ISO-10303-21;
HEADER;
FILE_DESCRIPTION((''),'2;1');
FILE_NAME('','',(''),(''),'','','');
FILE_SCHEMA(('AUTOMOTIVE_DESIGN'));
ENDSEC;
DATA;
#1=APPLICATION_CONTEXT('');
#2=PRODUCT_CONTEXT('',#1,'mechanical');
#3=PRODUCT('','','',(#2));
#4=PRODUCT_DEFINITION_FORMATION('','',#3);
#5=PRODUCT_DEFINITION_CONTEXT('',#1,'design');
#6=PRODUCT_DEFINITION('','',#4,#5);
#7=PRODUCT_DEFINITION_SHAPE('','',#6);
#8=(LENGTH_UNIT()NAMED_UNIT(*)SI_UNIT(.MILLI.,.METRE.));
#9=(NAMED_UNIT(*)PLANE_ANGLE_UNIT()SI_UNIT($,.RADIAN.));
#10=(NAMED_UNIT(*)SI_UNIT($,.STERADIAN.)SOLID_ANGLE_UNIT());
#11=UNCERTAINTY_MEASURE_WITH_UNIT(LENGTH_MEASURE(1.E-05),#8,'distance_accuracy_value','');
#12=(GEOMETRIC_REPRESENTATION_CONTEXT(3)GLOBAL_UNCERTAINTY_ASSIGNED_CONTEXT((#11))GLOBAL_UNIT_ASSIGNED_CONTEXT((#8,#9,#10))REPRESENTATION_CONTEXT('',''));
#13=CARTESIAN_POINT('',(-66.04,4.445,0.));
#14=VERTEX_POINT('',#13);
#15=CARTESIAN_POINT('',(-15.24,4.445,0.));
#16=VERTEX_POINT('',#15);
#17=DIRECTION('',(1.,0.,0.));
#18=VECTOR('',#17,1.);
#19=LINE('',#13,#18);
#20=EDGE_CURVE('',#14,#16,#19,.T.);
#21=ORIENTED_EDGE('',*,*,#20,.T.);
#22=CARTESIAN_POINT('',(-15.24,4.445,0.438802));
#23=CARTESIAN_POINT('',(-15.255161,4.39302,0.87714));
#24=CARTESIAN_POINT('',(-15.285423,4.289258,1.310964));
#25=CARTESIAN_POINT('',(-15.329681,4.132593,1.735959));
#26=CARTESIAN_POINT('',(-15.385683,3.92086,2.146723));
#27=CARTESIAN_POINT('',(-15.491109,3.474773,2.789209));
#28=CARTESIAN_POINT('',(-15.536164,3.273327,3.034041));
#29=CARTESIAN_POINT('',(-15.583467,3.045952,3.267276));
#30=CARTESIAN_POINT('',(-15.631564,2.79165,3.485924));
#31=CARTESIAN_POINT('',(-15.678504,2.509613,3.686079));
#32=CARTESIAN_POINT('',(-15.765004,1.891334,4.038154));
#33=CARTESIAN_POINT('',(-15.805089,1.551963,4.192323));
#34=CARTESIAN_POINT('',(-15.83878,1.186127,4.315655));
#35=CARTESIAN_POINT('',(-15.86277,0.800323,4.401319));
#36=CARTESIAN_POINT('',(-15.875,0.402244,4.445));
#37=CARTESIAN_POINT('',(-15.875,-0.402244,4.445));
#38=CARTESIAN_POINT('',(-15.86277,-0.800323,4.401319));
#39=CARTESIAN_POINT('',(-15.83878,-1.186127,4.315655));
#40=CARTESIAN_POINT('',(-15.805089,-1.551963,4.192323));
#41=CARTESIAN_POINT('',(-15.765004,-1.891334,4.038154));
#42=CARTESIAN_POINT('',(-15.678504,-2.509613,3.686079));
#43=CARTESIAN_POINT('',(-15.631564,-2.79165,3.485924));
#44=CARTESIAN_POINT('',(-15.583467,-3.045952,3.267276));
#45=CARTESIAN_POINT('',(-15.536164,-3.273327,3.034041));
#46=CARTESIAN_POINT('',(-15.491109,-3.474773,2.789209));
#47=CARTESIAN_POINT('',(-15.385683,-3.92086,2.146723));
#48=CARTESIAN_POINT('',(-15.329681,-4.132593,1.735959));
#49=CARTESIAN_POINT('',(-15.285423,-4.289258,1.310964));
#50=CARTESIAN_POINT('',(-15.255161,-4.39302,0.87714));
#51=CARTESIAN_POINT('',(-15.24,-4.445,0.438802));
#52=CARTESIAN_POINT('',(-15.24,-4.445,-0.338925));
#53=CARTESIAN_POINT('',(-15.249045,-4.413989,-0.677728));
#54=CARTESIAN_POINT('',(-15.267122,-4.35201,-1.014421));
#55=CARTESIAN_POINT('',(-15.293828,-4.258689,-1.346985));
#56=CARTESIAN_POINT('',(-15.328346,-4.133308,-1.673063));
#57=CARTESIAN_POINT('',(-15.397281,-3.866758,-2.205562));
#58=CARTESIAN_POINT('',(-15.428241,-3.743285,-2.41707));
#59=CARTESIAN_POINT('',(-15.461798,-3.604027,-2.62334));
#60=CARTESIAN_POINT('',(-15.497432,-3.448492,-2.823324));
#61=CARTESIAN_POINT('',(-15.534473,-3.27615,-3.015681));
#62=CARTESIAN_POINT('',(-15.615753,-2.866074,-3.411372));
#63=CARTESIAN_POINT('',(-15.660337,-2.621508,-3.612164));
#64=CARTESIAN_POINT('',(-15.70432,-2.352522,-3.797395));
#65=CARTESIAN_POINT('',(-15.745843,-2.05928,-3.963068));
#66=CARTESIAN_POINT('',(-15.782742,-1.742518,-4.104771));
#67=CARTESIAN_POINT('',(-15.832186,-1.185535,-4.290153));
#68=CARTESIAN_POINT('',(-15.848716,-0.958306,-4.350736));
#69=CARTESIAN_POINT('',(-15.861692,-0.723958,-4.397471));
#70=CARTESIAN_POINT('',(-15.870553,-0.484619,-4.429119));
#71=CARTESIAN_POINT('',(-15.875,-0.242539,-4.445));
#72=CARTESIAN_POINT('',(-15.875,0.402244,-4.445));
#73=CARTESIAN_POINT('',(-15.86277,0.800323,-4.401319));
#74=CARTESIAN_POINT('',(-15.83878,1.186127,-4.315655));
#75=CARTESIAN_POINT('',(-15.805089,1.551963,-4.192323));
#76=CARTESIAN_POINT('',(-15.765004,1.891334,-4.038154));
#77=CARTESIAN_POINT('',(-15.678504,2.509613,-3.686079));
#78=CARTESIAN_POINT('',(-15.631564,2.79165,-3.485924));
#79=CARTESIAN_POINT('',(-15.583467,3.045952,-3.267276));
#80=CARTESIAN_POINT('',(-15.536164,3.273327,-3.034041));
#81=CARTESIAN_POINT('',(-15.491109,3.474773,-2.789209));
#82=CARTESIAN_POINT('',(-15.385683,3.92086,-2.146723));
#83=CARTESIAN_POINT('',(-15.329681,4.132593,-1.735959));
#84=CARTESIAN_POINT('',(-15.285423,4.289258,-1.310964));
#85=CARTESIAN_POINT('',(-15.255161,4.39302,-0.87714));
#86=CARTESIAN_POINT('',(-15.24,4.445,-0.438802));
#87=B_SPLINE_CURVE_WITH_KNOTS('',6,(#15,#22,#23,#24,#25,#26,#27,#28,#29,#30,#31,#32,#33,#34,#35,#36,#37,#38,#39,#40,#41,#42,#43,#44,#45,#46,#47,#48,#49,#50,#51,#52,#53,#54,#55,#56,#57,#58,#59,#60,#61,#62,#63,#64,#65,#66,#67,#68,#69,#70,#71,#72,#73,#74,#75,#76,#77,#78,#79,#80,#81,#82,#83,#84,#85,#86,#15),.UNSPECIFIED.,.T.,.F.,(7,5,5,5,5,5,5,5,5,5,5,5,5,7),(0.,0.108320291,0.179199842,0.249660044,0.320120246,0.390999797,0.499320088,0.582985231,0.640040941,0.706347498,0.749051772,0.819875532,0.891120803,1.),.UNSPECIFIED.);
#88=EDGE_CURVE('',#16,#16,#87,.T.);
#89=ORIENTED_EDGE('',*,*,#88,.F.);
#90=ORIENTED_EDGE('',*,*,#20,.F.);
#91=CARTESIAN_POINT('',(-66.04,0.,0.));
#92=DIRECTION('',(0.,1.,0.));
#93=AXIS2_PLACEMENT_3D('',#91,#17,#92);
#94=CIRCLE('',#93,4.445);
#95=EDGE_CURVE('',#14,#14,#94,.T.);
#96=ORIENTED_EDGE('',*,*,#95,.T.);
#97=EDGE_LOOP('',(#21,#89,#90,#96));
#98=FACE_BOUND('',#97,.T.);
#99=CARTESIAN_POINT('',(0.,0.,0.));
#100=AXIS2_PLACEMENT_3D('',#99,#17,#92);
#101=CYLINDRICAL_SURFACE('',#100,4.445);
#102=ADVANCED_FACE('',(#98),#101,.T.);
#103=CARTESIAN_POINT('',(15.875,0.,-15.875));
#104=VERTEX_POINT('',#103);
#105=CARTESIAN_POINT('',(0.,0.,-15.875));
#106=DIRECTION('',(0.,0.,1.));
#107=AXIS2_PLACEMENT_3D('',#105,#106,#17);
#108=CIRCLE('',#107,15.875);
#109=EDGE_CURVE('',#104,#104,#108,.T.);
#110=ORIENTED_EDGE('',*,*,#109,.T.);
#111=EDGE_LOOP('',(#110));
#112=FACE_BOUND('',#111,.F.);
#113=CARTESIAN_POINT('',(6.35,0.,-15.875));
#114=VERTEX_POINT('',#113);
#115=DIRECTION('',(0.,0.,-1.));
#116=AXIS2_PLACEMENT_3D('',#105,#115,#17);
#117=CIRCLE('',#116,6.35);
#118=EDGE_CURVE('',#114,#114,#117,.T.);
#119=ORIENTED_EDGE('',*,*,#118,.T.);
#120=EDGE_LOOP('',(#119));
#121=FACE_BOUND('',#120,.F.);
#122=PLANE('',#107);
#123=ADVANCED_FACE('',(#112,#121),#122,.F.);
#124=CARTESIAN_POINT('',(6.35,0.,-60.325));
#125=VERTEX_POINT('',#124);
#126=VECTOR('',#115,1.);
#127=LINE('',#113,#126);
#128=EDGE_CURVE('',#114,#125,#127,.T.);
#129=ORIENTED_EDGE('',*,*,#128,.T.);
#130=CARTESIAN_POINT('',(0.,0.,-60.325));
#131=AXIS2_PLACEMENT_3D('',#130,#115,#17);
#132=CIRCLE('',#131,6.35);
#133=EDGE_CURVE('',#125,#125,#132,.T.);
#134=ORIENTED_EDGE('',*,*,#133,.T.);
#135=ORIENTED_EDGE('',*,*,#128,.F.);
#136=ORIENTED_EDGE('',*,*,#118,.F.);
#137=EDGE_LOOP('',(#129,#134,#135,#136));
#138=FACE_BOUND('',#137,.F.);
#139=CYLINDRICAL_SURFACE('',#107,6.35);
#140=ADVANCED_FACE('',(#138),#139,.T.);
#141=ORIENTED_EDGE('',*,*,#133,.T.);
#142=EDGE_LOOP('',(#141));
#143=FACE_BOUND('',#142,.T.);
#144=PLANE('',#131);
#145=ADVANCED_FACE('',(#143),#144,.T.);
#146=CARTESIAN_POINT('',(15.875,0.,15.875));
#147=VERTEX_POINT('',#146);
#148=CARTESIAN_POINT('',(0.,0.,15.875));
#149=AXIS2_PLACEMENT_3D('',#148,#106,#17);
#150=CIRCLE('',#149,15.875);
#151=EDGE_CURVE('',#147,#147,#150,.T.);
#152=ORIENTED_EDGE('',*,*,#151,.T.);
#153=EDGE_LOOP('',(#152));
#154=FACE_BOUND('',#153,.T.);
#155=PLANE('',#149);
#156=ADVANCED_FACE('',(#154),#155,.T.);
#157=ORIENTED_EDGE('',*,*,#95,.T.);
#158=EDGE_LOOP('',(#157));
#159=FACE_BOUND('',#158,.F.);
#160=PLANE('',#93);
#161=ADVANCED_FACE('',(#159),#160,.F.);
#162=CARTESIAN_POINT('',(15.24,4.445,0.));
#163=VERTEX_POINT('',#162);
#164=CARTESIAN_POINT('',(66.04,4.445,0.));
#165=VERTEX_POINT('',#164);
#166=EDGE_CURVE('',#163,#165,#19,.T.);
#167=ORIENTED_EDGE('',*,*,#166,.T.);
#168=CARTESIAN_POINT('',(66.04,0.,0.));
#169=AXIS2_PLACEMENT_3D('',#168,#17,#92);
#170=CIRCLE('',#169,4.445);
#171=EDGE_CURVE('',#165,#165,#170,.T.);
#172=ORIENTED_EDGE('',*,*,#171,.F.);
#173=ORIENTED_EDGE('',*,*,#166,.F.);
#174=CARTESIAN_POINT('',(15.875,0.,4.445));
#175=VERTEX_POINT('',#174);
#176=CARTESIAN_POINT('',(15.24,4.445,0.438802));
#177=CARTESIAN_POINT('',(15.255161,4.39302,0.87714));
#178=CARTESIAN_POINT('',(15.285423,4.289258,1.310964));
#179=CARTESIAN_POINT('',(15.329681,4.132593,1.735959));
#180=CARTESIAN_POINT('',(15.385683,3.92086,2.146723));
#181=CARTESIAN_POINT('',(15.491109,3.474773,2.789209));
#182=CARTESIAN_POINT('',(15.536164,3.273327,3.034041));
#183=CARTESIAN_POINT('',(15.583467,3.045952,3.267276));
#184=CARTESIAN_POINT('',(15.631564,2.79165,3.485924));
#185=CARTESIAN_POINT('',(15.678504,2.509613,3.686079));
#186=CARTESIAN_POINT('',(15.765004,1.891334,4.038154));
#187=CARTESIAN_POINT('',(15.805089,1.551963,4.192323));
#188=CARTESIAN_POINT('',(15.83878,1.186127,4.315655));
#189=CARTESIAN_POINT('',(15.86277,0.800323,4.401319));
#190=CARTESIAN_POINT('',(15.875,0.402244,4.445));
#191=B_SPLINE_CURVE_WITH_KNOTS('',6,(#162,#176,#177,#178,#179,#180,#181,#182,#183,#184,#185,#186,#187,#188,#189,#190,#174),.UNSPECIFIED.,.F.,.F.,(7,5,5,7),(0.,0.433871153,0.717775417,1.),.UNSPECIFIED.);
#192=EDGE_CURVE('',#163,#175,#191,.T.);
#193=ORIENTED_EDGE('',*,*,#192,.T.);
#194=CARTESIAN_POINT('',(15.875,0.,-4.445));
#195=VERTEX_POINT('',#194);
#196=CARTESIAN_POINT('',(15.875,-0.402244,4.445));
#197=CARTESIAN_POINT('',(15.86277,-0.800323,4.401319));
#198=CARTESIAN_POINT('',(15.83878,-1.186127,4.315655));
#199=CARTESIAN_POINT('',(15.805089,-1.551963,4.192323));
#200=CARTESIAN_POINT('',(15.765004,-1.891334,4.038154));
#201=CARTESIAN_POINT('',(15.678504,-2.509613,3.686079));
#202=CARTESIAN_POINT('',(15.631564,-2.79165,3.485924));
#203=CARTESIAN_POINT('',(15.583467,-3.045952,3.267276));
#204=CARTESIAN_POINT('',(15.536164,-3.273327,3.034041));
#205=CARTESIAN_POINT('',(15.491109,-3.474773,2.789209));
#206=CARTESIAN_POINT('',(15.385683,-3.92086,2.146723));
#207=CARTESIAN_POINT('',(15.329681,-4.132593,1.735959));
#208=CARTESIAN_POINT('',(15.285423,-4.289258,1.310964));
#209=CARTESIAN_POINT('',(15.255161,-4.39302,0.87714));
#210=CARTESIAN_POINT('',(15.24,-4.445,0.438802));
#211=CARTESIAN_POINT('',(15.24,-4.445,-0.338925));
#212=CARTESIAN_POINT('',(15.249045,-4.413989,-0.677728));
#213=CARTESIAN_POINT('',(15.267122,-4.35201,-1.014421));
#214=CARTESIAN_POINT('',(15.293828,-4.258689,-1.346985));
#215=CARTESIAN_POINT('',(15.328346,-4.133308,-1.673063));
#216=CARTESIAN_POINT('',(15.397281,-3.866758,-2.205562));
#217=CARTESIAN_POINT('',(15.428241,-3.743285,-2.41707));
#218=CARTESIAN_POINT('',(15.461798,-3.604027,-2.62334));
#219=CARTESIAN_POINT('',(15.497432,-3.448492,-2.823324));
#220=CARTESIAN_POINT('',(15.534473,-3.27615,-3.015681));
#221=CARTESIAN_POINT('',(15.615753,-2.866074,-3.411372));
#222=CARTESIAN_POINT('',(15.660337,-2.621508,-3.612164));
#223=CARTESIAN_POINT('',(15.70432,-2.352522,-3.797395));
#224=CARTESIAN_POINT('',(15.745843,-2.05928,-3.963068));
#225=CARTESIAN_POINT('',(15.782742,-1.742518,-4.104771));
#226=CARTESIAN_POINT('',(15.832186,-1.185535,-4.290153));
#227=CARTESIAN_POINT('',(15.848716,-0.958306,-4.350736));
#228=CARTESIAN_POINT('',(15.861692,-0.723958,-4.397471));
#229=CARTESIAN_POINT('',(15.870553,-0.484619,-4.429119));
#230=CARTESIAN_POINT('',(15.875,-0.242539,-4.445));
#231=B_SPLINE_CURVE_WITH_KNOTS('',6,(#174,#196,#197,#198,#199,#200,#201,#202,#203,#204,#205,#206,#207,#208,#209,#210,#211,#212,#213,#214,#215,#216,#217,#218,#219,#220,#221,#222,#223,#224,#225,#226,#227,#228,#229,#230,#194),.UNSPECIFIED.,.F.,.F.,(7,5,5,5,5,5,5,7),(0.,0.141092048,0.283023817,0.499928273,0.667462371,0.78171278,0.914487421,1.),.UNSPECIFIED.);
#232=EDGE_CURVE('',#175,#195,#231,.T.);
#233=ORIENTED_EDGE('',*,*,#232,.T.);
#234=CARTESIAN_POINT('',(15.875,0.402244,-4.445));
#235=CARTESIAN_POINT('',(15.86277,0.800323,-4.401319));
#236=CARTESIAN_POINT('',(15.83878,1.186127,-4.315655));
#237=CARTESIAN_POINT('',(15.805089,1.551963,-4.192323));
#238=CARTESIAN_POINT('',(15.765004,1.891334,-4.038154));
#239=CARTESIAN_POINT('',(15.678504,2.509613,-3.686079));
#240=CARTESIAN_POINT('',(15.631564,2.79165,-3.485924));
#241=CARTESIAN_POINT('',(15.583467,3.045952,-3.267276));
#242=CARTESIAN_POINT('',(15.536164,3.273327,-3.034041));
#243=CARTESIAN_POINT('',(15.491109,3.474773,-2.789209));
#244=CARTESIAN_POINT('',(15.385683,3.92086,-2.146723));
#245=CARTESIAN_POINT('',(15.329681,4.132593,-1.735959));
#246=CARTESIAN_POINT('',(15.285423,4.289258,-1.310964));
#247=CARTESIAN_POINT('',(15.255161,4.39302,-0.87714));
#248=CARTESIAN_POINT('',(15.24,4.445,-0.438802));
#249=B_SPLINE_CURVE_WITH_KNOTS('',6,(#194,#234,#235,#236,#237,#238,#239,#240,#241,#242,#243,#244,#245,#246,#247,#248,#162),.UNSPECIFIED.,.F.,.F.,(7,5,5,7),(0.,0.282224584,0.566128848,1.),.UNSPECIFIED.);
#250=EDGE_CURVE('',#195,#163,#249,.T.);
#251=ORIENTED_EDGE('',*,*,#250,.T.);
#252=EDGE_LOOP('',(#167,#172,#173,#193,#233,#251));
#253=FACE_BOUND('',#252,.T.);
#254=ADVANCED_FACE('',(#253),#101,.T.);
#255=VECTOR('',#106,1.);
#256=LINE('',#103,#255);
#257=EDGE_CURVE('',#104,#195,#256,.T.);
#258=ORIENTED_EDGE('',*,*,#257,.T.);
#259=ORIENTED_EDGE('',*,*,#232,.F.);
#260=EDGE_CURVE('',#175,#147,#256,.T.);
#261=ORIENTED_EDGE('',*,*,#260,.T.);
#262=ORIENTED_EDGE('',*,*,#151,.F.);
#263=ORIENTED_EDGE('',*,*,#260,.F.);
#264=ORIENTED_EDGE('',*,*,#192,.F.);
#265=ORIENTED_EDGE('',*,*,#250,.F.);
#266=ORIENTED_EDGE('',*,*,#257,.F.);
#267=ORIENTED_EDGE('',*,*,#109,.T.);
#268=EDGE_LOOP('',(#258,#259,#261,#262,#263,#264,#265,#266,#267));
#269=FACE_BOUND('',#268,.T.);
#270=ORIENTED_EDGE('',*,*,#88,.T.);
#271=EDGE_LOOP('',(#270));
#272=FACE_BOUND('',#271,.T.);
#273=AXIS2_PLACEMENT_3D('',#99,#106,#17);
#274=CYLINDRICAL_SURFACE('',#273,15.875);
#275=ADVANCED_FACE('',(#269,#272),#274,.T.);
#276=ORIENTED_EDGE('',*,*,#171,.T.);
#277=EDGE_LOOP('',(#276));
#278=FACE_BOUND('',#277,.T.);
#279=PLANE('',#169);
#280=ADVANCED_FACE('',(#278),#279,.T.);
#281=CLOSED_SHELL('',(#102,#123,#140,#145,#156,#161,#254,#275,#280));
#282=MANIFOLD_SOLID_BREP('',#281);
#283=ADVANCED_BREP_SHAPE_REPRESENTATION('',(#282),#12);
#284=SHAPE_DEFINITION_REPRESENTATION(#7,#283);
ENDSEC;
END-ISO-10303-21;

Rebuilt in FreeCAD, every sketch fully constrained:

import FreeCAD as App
import Part
import Sketcher
Q = App.Units.Quantity

doc = App.newDocument("Part")
body = doc.addObject("PartDesign::Body", "Body")

# Sketch on XY plane
sketch1 = body.newObject("Sketcher::SketchObject", "Sketch")
sketch1.AttachmentSupport = (doc.getObject("XY_Plane"), [""])
sketch1.MapMode = "FlatFace"
sketch1.addGeometry(Part.Circle(App.Vector(0, 0, 0), App.Vector(0, 0, 1), 15.875), False)
sketch1.addConstraint(Sketcher.Constraint("Coincident", 0, 3, -1, 1))
sketch1.addConstraint(Sketcher.Constraint("Diameter", 0, Q("1.25 in")))
pad1 = body.newObject("PartDesign::Pad", "Pad")
pad1.Profile = sketch1
pad1.Length = Q("1.25 in")
pad1.Midplane = True

# Sketch on XY plane
sketch2 = body.newObject("Sketcher::SketchObject", "Sketch001")
sketch2.AttachmentSupport = (doc.getObject("XY_Plane"), [""])
sketch2.MapMode = "FlatFace"
sketch2.AttachmentOffset = App.Placement(App.Vector(0, 0, -0.625 * 25.4), App.Rotation())
sketch2.addGeometry(Part.Circle(App.Vector(0, 0, 0), App.Vector(0, 0, 1), 6.35), False)
sketch2.addConstraint(Sketcher.Constraint("Coincident", 0, 3, -1, 1))
sketch2.addConstraint(Sketcher.Constraint("Diameter", 0, Q("0.5 in")))
pad2 = body.newObject("PartDesign::Pad", "Pad001")
pad2.Profile = sketch2
pad2.Length = Q("1.75 in")
pad2.Reversed = True

# Sketch on YZ plane
sketch3 = body.newObject("Sketcher::SketchObject", "Sketch002")
sketch3.AttachmentSupport = (doc.getObject("YZ_Plane"), [""])
sketch3.MapMode = "FlatFace"
sketch3.addGeometry(Part.Circle(App.Vector(0, 0, 0), App.Vector(0, 0, 1), 4.445), False)
sketch3.addConstraint(Sketcher.Constraint("Coincident", 0, 3, -1, 1))
sketch3.addConstraint(Sketcher.Constraint("Diameter", 0, Q("0.35 in")))
pad3 = body.newObject("PartDesign::Pad", "Pad002")
pad3.Profile = sketch3
pad3.Length = Q("5.2 in")
pad3.Midplane = True

doc.recompute()
